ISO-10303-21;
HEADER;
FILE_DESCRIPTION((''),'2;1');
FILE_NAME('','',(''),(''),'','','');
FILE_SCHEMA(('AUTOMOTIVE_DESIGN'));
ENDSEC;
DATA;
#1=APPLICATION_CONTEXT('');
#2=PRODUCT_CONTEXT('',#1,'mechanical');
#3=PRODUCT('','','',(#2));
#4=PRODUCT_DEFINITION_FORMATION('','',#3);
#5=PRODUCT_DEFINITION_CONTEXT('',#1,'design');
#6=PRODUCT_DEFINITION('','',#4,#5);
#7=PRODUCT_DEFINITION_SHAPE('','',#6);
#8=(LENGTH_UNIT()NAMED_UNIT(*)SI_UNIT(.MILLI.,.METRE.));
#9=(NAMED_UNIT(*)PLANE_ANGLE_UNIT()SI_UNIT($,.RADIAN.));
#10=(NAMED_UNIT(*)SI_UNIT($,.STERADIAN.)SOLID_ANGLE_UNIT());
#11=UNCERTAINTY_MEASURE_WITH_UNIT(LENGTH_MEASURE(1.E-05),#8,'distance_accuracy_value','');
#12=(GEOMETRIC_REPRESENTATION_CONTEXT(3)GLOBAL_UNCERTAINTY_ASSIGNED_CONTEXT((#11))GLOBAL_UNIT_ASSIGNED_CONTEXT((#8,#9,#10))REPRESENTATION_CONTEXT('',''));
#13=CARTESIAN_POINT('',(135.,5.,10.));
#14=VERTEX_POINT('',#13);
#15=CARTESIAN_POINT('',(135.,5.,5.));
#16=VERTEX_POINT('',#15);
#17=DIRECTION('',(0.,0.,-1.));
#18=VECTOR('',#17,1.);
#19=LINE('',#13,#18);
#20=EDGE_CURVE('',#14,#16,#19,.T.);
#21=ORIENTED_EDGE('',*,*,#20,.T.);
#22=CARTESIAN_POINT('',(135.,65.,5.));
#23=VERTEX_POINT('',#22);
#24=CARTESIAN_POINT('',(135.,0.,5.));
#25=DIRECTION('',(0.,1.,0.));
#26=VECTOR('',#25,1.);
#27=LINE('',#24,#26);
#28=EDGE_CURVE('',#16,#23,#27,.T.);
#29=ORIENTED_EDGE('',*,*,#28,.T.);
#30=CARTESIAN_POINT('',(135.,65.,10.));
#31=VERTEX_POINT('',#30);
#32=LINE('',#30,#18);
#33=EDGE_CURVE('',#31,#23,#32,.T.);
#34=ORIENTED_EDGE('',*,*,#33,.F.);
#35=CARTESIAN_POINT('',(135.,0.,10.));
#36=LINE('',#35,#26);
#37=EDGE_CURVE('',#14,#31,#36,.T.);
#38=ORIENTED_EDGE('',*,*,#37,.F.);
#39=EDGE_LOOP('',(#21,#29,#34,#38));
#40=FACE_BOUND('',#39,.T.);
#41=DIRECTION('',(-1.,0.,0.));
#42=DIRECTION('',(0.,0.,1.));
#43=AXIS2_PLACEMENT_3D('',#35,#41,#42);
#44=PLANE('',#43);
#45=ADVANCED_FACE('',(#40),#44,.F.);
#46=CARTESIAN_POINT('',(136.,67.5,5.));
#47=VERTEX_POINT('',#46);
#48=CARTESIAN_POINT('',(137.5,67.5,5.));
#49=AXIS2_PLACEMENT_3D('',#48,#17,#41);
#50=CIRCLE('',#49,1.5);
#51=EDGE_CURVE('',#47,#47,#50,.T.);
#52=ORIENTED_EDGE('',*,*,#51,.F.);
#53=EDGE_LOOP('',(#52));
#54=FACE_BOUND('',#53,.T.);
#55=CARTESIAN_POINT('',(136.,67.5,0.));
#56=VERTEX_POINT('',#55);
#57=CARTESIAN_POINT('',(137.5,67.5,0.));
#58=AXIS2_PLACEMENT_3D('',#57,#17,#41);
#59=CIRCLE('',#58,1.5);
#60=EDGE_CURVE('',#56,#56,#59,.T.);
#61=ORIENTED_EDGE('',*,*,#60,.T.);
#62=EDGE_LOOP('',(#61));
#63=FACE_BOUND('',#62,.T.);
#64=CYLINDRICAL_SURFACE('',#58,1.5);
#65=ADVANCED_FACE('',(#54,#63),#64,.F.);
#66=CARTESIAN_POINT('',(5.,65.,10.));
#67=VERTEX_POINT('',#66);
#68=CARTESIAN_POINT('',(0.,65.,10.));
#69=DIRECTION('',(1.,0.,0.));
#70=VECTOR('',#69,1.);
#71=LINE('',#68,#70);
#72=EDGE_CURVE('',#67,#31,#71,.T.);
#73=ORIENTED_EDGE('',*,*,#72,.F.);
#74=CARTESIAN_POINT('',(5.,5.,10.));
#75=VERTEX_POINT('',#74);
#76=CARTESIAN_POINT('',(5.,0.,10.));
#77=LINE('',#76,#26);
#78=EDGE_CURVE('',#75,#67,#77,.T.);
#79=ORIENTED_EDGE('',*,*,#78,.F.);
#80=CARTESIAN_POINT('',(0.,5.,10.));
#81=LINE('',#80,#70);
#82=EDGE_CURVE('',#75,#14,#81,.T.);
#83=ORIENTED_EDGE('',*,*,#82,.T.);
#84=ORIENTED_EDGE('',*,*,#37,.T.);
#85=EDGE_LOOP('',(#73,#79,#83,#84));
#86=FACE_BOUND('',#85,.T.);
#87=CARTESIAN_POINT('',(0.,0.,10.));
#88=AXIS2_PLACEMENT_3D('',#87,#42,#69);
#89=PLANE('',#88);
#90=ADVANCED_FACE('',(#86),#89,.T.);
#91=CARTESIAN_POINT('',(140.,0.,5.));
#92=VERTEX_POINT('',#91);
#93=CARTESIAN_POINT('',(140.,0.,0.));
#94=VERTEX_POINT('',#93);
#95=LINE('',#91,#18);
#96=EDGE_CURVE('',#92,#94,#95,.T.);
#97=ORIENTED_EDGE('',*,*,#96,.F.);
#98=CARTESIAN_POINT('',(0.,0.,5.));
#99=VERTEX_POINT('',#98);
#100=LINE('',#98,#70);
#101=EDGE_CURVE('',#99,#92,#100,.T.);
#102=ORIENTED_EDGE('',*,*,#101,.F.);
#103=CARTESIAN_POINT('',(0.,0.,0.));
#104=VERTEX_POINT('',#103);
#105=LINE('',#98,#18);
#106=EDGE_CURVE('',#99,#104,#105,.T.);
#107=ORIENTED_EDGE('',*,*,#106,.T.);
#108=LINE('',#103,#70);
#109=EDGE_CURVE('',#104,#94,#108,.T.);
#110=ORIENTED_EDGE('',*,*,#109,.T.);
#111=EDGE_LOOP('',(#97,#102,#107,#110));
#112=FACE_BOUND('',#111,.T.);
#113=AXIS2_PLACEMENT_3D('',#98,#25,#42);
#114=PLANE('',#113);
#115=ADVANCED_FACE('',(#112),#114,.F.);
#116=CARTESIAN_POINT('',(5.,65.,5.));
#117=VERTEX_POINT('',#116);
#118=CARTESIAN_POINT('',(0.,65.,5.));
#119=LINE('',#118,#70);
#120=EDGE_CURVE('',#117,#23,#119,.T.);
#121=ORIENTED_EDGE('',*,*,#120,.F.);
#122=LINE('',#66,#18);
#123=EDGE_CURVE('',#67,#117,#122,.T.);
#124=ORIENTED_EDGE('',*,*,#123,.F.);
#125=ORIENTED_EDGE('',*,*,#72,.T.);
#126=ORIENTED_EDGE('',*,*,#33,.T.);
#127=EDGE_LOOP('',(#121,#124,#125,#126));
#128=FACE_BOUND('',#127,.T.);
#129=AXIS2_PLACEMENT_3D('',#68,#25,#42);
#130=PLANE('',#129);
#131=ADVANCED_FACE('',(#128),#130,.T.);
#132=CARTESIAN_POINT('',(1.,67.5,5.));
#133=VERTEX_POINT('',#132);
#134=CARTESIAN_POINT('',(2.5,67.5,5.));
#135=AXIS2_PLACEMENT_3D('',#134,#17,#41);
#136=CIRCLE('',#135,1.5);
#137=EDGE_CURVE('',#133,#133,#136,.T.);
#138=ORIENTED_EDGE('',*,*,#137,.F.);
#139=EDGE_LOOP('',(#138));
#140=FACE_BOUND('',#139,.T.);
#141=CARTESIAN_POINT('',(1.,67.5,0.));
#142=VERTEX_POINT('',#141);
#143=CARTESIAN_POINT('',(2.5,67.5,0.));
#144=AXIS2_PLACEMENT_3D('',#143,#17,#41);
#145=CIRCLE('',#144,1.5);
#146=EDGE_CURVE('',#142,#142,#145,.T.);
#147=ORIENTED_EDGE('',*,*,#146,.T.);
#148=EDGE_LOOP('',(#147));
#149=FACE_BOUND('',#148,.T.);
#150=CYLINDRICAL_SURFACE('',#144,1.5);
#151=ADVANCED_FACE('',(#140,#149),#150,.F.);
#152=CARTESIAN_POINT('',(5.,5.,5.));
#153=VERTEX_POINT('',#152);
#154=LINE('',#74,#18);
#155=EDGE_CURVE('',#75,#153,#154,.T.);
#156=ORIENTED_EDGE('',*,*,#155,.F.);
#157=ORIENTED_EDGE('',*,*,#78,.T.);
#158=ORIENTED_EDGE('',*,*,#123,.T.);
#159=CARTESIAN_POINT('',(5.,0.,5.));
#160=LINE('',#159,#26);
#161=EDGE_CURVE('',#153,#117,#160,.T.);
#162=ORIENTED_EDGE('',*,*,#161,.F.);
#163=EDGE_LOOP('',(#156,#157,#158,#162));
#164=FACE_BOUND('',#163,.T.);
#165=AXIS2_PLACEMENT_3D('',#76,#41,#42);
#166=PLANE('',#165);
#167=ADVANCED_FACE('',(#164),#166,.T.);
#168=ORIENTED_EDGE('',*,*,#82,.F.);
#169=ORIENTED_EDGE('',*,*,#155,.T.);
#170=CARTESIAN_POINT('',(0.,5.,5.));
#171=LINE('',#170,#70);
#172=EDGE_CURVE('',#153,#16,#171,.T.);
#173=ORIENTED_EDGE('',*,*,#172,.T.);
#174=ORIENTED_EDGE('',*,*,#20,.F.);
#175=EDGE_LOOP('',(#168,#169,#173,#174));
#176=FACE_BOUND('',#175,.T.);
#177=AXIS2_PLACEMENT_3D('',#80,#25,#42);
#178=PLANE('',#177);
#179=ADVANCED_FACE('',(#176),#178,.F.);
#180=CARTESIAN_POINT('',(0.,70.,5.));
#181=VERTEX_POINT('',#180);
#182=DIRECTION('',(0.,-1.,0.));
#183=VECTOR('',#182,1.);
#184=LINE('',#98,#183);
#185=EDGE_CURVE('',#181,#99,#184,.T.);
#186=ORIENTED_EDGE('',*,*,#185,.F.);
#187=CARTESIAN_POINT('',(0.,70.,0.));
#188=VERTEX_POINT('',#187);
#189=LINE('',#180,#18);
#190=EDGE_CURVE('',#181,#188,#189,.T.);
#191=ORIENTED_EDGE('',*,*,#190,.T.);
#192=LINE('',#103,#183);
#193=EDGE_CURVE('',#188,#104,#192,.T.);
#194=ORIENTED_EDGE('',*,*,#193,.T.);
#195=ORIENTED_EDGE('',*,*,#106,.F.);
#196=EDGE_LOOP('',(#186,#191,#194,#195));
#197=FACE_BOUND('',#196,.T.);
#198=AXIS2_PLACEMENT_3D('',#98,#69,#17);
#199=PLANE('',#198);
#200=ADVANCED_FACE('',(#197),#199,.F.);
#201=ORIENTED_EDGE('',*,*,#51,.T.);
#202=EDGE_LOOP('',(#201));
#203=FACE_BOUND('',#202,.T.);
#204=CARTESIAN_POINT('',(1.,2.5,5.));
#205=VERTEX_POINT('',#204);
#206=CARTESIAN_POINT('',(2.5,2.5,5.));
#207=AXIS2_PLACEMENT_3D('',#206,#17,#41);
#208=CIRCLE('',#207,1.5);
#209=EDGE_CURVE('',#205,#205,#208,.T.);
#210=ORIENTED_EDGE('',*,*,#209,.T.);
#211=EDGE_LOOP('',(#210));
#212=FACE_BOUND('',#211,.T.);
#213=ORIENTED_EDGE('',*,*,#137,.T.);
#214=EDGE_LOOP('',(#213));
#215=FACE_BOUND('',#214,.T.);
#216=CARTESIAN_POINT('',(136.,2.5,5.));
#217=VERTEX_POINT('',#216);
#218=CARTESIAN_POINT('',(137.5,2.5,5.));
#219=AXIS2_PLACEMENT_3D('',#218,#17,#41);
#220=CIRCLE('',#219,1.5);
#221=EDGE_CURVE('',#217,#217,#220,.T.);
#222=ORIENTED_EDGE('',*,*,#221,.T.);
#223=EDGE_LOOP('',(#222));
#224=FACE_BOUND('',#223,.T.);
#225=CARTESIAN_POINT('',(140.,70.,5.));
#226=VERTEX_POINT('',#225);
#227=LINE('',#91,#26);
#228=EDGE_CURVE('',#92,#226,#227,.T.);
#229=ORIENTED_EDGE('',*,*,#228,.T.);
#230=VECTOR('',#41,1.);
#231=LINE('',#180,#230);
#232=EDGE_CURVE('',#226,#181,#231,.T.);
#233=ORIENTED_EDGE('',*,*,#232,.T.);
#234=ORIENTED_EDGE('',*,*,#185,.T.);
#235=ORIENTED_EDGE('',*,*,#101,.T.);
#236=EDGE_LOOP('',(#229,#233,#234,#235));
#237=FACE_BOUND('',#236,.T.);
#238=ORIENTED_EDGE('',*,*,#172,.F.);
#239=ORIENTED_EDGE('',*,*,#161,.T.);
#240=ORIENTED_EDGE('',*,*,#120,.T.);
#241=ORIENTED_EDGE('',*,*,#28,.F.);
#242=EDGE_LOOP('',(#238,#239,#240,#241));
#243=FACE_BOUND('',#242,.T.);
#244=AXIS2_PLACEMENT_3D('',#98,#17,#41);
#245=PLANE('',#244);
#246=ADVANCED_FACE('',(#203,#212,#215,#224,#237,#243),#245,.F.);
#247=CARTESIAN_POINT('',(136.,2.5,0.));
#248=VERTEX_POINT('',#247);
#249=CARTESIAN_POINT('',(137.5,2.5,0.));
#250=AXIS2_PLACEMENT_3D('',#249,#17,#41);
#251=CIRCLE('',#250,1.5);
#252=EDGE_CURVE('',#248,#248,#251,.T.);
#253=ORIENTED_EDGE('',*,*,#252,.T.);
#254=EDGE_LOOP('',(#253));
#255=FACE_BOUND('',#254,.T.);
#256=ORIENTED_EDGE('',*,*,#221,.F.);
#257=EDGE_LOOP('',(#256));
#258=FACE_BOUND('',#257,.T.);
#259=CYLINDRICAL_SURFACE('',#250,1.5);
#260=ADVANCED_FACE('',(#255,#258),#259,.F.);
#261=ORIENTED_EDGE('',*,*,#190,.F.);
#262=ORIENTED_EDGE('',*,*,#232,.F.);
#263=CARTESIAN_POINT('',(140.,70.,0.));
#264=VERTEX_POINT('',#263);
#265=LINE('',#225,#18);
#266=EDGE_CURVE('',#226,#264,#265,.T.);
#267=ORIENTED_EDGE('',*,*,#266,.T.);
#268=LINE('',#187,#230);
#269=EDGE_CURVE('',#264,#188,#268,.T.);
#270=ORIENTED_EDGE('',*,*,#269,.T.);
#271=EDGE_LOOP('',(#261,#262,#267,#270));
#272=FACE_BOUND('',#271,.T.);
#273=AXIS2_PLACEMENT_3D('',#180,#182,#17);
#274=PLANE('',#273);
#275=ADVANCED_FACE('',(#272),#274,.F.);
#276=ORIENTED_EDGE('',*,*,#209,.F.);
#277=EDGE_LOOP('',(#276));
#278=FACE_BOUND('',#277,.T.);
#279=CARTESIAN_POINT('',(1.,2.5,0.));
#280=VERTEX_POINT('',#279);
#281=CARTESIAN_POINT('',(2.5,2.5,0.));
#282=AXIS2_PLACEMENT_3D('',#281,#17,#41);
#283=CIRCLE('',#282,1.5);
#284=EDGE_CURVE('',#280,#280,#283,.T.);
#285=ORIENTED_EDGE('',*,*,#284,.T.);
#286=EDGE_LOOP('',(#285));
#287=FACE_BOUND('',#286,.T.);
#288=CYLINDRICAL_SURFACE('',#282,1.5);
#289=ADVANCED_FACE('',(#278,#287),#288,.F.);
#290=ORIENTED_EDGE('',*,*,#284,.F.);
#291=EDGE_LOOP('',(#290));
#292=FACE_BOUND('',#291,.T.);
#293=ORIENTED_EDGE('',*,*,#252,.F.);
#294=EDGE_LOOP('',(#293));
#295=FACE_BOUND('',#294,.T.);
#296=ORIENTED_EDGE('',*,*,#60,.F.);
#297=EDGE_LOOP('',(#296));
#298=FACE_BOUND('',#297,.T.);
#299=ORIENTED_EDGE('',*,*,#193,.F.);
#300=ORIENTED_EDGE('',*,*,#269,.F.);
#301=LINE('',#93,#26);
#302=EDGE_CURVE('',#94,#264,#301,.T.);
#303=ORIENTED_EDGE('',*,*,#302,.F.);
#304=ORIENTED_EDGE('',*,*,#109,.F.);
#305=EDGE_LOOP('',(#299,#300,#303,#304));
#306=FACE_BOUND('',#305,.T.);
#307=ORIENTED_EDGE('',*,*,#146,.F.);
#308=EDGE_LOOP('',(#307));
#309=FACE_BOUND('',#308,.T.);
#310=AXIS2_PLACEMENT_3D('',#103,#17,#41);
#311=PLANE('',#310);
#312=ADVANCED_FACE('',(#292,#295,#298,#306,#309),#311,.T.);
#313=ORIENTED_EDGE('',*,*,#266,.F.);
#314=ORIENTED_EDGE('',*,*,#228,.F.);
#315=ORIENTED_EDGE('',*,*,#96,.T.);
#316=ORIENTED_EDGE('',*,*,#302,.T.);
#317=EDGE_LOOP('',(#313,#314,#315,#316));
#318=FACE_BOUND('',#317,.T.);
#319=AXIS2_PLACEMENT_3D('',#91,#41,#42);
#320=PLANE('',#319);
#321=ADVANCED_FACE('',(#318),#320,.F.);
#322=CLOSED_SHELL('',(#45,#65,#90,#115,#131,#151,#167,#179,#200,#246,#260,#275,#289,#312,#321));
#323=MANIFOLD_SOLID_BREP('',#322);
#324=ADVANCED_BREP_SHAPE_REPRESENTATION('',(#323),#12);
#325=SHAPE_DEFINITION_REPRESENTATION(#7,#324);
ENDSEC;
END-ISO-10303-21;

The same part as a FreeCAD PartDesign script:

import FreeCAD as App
import Part
import Sketcher

V = App.Vector
Q = App.Units.Quantity

doc = App.newDocument("Part")
body = doc.addObject("PartDesign::Body", "Body")

# Sketch on XY plane
sketch1 = body.newObject("Sketcher::SketchObject", "Sketch")
sketch1.AttachmentSupport = (doc.getObject("XY_Plane"), [""])
sketch1.MapMode = "FlatFace"
sketch1.addGeometry([
    Part.LineSegment(V(0, 70, 0), V(0, 0, 0)),
    Part.LineSegment(V(0, 0, 0), V(140, 0, 0)),
    Part.LineSegment(V(140, 0, 0), V(140, 70, 0)),
    Part.LineSegment(V(140, 70, 0), V(0, 70, 0)),
], False)
sketch1.addConstraint([
    Sketcher.Constraint("Coincident", 0, 2, 1, 1),
    Sketcher.Constraint("Coincident", 1, 2, 2, 1),
    Sketcher.Constraint("Coincident", 2, 2, 3, 1),
    Sketcher.Constraint("Coincident", 3, 2, 0, 1),
    Sketcher.Constraint("Vertical", 0),
    Sketcher.Constraint("Horizontal", 1),
    Sketcher.Constraint("Vertical", 2),
    Sketcher.Constraint("Horizontal", 3),
    Sketcher.Constraint("Coincident", 0, 2, -1, 1),
    Sketcher.Constraint("DistanceX", 1, 1, 1, 2, Q("140 mm")),
    Sketcher.Constraint("DistanceY", 0, 2, 0, 1, Q("70 mm")),
])
pad1 = body.newObject("PartDesign::Pad", "Pad")
pad1.Profile = sketch1
pad1.Length = 5

# Sketch on XY plane
sketch2 = body.newObject("Sketcher::SketchObject", "Sketch001")
sketch2.AttachmentSupport = (doc.getObject("XY_Plane"), [""])
sketch2.MapMode = "FlatFace"
sketch2.AttachmentOffset = App.Placement(V(0, 0, 5), App.Rotation())
sketch2.addGeometry([
    Part.LineSegment(V(5, 65, 0), V(5, 5, 0)),
    Part.LineSegment(V(5, 5, 0), V(135, 5, 0)),
    Part.LineSegment(V(135, 5, 0), V(135, 65, 0)),
    Part.LineSegment(V(135, 65, 0), V(5, 65, 0)),
], False)
sketch2.addConstraint([
    Sketcher.Constraint("Coincident", 0, 2, 1, 1),
    Sketcher.Constraint("Coincident", 1, 2, 2, 1),
    Sketcher.Constraint("Coincident", 2, 2, 3, 1),
    Sketcher.Constraint("Coincident", 3, 2, 0, 1),
    Sketcher.Constraint("Vertical", 0),
    Sketcher.Constraint("Horizontal", 1),
    Sketcher.Constraint("Vertical", 2),
    Sketcher.Constraint("Horizontal", 3),
    Sketcher.Constraint("DistanceX", 1, 1, 1, 2, Q("130 mm")),
    Sketcher.Constraint("DistanceY", 0, 2, 0, 1, Q("60 mm")),
    Sketcher.Constraint("DistanceX", -1, 1, 0, 2, Q("5 mm")),
    Sketcher.Constraint("DistanceY", -1, 1, 0, 2, Q("5 mm")),
])
pad2 = body.newObject("PartDesign::Pad", "Pad001")
pad2.Profile = sketch2
pad2.Length = 5

# Sketch on XY plane
sketch3 = body.newObject("Sketcher::SketchObject", "Sketch002")
sketch3.AttachmentSupport = (doc.getObject("XY_Plane"), [""])
sketch3.MapMode = "FlatFace"
sketch3.addGeometry([
    Part.Circle(V(137.5, 2.5, 0), V(0, 0, 1), 1.5),
    Part.Circle(V(137.5, 67.5, 0), V(0, 0, 1), 1.5),
    Part.Circle(V(2.5, 2.5, 0), V(0, 0, 1), 1.5),
    Part.Circle(V(2.5, 67.5, 0), V(0, 0, 1), 1.5),
], False)
sketch3.addConstraint([
    Sketcher.Constraint("Equal", 0, 1),
    Sketcher.Constraint("Equal", 1, 2),
    Sketcher.Constraint("Equal", 2, 3),
    Sketcher.Constraint("Horizontal", 0, 3, 2, 3),
    Sketcher.Constraint("Horizontal", 1, 3, 3, 3),
    Sketcher.Constraint("Vertical", 0, 3, 1, 3),
    Sketcher.Constraint("Vertical", 2, 3, 3, 3),
    Sketcher.Constraint("Diameter", 0, Q("3 mm")),
    Sketcher.Constraint("DistanceY", 0, 3, 1, 3, Q("65 mm")),
    Sketcher.Constraint("DistanceX", 2, 3, 0, 3, Q("135 mm")),
    Sketcher.Constraint("DistanceX", -1, 1, 0, 3, Q("137.5 mm")),
    Sketcher.Constraint("DistanceY", -1, 1, 0, 3, Q("2.5 mm")),
])
doc.recompute()
hole = body.newObject("PartDesign::Hole", "Hole")
hole.Profile = sketch3
hole.ThreadType = "None"
hole.Diameter = 3
hole.DepthType = "ThroughAll"
hole.Reversed = True

doc.recompute()
